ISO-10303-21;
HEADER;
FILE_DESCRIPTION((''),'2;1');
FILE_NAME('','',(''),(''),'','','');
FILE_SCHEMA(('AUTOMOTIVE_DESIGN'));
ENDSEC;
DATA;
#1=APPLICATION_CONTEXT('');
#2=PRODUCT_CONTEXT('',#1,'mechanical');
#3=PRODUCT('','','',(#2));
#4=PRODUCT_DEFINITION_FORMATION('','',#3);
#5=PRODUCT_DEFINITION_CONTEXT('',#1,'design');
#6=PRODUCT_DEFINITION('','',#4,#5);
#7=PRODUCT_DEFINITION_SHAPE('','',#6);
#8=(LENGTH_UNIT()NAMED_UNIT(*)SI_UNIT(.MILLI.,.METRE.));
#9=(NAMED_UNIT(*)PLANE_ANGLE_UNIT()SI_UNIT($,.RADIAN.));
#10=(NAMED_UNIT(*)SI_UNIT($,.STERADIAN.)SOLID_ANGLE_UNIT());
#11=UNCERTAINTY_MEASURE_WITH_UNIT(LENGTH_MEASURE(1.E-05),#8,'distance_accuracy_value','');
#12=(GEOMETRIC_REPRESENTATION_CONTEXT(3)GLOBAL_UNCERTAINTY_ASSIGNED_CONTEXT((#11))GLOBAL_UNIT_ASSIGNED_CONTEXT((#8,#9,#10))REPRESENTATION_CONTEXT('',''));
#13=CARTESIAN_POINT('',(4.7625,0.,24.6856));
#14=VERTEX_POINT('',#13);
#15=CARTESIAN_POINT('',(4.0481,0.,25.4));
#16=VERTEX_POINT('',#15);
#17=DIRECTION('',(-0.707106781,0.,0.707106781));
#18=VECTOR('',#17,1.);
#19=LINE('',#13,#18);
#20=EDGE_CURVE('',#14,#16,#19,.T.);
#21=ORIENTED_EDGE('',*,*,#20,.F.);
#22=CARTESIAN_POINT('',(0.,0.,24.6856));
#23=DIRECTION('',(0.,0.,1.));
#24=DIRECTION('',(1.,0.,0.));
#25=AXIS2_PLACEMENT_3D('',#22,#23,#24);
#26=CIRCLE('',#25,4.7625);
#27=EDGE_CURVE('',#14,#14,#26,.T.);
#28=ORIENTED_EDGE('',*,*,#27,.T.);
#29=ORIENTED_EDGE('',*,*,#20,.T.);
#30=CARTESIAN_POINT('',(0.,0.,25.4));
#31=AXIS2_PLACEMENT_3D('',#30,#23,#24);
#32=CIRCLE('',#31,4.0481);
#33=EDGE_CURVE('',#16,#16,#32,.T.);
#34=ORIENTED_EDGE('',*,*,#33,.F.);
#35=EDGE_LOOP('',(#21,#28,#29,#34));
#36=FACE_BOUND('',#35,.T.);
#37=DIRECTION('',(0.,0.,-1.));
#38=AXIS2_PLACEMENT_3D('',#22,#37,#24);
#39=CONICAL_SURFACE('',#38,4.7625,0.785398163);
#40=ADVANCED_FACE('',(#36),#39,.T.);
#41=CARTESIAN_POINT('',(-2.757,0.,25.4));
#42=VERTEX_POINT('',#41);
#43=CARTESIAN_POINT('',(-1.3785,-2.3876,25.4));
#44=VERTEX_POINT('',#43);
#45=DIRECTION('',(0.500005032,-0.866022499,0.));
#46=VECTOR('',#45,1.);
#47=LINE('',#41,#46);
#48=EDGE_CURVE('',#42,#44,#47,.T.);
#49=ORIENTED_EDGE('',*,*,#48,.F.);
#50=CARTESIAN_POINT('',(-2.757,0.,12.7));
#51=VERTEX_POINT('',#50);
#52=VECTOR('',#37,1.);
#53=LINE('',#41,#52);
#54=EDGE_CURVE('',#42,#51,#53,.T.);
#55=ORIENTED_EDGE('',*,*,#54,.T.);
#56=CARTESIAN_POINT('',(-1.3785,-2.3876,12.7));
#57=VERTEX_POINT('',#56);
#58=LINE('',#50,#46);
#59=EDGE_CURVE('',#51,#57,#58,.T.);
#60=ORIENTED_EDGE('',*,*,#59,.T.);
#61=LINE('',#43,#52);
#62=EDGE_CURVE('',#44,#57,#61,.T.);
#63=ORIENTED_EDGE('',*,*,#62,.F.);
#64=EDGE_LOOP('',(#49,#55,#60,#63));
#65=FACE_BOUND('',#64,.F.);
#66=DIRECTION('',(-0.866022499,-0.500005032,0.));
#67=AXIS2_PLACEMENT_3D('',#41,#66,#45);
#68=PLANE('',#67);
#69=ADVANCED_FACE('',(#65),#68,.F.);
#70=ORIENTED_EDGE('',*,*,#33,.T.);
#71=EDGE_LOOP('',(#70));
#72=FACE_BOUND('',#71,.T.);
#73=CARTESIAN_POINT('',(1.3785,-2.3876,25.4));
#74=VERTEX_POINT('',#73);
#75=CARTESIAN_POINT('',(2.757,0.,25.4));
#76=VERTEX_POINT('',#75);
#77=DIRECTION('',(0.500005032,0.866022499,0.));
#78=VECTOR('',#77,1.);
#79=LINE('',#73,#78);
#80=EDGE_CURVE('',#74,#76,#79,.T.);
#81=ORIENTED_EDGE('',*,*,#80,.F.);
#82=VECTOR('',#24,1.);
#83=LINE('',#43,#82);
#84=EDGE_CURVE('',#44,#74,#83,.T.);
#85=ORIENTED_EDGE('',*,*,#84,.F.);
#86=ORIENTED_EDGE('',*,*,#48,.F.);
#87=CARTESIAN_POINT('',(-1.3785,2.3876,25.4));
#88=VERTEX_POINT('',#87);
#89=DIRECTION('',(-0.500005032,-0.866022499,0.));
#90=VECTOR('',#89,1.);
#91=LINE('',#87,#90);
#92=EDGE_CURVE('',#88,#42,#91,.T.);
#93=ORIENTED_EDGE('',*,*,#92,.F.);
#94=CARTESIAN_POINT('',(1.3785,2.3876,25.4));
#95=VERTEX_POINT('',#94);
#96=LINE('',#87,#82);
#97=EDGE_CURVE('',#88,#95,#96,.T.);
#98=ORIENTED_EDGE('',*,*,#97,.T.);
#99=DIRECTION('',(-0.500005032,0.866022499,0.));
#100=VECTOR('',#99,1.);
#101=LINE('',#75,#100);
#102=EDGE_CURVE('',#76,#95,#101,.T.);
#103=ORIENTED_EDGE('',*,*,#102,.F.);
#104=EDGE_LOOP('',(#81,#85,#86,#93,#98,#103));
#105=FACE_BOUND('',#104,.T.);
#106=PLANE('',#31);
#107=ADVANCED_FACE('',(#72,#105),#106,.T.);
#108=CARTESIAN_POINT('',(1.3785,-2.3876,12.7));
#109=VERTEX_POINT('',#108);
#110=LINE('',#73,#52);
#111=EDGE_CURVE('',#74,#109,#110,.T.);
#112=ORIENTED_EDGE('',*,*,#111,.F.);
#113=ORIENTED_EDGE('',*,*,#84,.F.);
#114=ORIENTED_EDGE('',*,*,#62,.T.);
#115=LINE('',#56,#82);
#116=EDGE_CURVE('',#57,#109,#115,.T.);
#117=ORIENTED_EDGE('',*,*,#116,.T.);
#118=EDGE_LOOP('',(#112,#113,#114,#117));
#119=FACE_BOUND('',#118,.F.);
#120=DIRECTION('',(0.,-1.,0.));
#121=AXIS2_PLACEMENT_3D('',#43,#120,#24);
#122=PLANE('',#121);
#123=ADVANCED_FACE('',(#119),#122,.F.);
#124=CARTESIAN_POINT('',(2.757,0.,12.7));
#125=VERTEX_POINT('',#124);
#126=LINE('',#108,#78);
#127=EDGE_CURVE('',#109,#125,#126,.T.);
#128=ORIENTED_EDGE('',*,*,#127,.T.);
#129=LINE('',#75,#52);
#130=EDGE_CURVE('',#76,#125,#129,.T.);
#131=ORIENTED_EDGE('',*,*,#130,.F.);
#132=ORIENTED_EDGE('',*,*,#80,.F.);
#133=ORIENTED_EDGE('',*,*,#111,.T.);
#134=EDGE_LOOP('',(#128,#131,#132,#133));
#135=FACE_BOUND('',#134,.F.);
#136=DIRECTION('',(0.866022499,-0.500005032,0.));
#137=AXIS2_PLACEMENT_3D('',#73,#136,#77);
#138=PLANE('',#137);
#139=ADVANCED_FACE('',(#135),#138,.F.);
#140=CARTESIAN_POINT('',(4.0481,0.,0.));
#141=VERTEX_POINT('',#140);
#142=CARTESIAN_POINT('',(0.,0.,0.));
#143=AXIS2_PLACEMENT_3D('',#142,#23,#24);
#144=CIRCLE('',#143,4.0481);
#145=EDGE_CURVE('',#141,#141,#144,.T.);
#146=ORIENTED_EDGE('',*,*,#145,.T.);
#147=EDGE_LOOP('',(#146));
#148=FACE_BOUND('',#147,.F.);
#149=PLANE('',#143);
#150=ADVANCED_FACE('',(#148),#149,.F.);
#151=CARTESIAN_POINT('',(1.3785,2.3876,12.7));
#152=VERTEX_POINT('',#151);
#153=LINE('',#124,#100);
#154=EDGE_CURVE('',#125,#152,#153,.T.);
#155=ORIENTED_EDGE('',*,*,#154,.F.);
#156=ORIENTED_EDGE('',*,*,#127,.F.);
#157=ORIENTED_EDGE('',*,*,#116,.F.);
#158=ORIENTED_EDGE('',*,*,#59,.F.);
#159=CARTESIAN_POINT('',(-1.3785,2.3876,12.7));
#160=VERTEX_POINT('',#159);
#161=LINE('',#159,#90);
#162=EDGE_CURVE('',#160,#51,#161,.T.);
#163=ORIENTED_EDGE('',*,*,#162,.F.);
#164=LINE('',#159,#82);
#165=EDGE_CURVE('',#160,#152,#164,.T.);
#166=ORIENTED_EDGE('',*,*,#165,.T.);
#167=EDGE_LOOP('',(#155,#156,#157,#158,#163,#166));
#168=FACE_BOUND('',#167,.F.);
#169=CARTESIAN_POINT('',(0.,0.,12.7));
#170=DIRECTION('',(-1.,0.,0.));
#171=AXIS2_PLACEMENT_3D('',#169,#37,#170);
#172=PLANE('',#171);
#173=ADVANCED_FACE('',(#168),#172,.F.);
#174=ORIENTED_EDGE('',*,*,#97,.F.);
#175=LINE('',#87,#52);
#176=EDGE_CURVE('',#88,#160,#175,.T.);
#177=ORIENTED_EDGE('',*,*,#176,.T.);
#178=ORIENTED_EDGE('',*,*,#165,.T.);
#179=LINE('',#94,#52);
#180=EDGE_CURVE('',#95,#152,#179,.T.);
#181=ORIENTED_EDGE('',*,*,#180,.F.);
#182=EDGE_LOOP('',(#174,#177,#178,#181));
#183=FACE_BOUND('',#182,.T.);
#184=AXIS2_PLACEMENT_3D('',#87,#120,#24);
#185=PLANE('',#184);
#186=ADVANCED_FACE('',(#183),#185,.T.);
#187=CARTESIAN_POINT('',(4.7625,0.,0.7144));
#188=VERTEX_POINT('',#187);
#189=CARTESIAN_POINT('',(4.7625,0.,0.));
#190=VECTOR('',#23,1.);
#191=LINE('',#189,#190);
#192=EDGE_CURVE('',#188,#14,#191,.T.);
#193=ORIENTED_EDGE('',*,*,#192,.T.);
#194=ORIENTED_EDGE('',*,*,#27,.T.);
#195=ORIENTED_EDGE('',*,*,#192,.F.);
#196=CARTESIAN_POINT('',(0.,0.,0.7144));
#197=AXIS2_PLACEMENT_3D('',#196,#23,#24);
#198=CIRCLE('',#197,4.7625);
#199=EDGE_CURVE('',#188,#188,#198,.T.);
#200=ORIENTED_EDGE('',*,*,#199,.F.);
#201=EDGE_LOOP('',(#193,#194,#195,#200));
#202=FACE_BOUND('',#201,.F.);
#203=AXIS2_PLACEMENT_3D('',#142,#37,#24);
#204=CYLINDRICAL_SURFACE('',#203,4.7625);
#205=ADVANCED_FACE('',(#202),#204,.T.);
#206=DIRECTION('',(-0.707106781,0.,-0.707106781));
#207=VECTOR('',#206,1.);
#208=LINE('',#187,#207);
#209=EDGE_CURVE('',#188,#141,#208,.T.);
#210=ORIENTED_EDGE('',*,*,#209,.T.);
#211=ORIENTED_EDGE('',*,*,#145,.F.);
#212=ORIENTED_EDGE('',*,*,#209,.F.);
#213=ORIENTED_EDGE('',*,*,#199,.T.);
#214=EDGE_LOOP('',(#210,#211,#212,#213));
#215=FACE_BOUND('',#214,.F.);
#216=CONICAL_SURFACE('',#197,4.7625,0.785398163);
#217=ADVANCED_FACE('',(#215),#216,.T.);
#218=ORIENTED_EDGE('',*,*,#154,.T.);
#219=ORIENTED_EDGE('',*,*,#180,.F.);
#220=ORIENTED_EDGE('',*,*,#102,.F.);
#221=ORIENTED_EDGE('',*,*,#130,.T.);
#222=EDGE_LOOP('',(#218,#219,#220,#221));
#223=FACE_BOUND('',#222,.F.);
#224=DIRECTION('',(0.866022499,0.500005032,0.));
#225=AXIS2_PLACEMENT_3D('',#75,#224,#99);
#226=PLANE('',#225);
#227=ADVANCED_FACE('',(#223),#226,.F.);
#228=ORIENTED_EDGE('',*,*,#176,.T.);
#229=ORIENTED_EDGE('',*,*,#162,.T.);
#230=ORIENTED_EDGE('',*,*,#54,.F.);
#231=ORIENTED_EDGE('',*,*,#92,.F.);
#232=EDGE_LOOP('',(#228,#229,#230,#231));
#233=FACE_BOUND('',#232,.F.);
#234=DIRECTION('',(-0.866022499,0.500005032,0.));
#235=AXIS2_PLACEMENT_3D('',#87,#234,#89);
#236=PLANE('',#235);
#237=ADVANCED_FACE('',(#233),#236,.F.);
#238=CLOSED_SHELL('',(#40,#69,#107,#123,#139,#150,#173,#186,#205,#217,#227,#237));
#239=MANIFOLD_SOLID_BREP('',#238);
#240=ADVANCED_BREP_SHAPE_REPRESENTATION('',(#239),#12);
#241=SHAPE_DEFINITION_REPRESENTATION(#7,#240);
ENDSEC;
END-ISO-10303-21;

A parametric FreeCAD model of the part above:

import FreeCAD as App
import Part
import Sketcher
from FreeCAD import Vector
Q = App.Units.Quantity


def edges_at(feature, points):
    """Names of the edges that pass closest to the given points."""
    edges = feature.Shape.Edges
    near = lambda p: min(range(len(edges)), key=lambda i: edges[i].distToShape(Part.Vertex(*p))[0])
    return sorted({f"Edge{near(p) + 1}" for p in points})


def add_polygon(sketch, points):
    """Adds a closed chain of lines whose ends are joined by coincident constraints."""
    first, n = sketch.GeometryCount, len(points)
    for a, b in zip(points, points[1:] + points[:1]):
        sketch.addGeometry(Part.LineSegment(App.Vector(*a, 0), App.Vector(*b, 0)), False)
    for i in range(n):
        sketch.addConstraint(Sketcher.Constraint("Coincident", first + i, 2, first + (i + 1) % n, 1))

doc = App.newDocument("Part")
params = doc.addObject("Spreadsheet::Sheet", "Params")
for row, (alias, value) in enumerate([
    ("sketch1_diameter", "0.375 in"),
    ("pad1_length", "1 in"),
    ("chamfer_size", "0.7144 mm"),
    ("pocket1_length", "0.5 in"),
], start=1):
    params.set(f"A{row}", alias)
    params.set(f"B{row}", "=" + value)
    params.setAlias(f"B{row}", alias)

body = doc.addObject("PartDesign::Body", "Body")

# Sketch on XY plane
sketch1 = body.newObject("Sketcher::SketchObject", "Sketch")
sketch1.AttachmentSupport = (doc.getObject("XY_Plane"), [""])
sketch1.MapMode = "FlatFace"
sketch1.addGeometry(Part.Circle(Vector(0, 0, 0), Vector(0, 0, 1), 4.8), False)
sketch1.addConstraint(Sketcher.Constraint("Coincident", 0, 3, -1, 1))
sketch1.addConstraint(Sketcher.Constraint("Diameter", 0, Q("0.375 in")))
sketch1.setExpression("Constraints[1]", "Params.sketch1_diameter")
pad1 = body.newObject("PartDesign::Pad", "Pad")
pad1.Profile = sketch1
pad1.setExpression("Length", "Params.pad1_length")
doc.recompute()

chamfer = body.newObject("PartDesign::Chamfer", "Chamfer")
chamfer.Base = (pad1, edges_at(pad1, [(-4.763, 0, 0), (-4.763, 0, 25.4)]))
chamfer.setExpression("Size", "Params.chamfer_size")

# Sketch on XY plane
sketch2 = body.newObject("Sketcher::SketchObject", "Sketch001")
sketch2.AttachmentSupport = (doc.getObject("XY_Plane"), [""])
sketch2.MapMode = "FlatFace"
sketch2.AttachmentOffset = App.Placement(Vector(0, 0, 1 * 25.4), App.Rotation())
add_polygon(sketch2, [(1.4, 2.4), (-1.4, 2.4), (-2.8, 0), (-1.4, -2.4), (1.4, -2.4), (2.8, 0)])  # lines 0-5
sketch2.addConstraint(Sketcher.Constraint("Horizontal", 0))
sketch2.addConstraint(Sketcher.Constraint("Horizontal", 3))
sketch2.addConstraint(Sketcher.Constraint("Symmetric", 0, 2, 3, 2, -1, 1))
sketch2.addConstraint(Sketcher.Constraint("Symmetric", 1, 2, 4, 2, -1, 1))
sketch2.addConstraint(Sketcher.Constraint("PointOnObject", 1, 2, -1))
sketch2.addConstraint(Sketcher.Constraint("Parallel", 2, 5))
sketch2.addConstraint(Sketcher.Constraint("Vertical", 0, 2, 2, 2))
sketch2.addConstraint(Sketcher.Constraint("Angle", 1, Q("-120.0003 deg")))
sketch2.addConstraint(Sketcher.Constraint("DistanceY", -1, 1, 0, 2, Q("0.094 in")))
sketch2.addConstraint(Sketcher.Constraint("DistanceX", 0, 2, 0, 1, 2.757))
pocket1 = body.newObject("PartDesign::Pocket", "Pocket")
pocket1.Profile = sketch2
pocket1.setExpression("Length", "Params.pocket1_length")

doc.recompute()
